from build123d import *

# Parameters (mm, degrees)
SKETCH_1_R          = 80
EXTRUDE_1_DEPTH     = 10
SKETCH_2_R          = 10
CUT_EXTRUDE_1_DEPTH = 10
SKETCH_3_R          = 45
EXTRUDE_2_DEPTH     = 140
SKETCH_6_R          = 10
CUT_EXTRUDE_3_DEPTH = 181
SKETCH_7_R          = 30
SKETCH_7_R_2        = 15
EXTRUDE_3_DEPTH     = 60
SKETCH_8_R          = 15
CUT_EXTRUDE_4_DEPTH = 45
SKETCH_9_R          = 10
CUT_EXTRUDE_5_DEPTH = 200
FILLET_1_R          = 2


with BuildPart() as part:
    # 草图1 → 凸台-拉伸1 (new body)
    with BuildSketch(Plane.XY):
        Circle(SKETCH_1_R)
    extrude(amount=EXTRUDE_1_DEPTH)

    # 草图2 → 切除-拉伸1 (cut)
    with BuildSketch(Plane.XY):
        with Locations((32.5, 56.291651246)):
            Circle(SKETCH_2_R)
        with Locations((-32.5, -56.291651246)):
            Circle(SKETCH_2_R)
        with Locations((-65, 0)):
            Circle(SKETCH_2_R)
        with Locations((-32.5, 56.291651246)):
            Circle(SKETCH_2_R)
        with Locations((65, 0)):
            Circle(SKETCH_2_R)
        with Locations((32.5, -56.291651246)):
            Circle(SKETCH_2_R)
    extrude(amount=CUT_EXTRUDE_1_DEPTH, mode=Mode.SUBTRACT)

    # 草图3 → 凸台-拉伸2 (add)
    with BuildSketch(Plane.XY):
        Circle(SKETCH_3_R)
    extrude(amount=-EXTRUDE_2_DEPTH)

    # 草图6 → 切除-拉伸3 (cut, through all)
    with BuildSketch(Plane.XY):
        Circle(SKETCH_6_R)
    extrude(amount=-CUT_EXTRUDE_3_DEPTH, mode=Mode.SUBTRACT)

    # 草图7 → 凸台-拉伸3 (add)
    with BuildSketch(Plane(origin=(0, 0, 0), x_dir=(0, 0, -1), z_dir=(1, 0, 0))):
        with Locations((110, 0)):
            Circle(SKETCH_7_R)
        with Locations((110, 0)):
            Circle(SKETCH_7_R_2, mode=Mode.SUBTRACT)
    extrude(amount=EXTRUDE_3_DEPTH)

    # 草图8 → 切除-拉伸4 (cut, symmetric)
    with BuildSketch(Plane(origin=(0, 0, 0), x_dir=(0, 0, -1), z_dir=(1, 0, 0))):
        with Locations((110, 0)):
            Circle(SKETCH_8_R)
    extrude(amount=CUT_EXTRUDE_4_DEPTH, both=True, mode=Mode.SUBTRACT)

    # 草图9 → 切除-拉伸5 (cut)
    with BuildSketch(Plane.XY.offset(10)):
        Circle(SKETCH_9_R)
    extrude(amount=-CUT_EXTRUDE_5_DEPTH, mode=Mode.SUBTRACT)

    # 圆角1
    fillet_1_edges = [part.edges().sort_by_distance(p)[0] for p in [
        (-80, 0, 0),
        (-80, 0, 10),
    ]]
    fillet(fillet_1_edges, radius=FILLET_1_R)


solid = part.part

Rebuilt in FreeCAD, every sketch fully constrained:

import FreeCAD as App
import Part
import Sketcher
Q = App.Units.Quantity


def edges_at(feature, points):
    """Names of the edges that pass closest to the given points."""
    edges = feature.Shape.Edges
    near = lambda p: min(range(len(edges)), key=lambda i: edges[i].distToShape(Part.Vertex(*p))[0])
    return sorted({f"Edge{near(p) + 1}" for p in points})

doc = App.newDocument("Part")
params = doc.addObject("Spreadsheet::Sheet", "Params")
for row, (alias, value) in enumerate([
    ("sketch1_diameter", "160 mm"),
    ("pad1_length", "10 mm"),
    ("sketch2_diameter", "20 mm"),
    ("pocket1_length", "10 mm"),
    ("sketch3_diameter", "90 mm"),
    ("pad2_length", "140 mm"),
    ("sketch4_diameter", "20 mm"),
    ("sketch5_diameter", "60 mm"),
    ("sketch5_diameter2", "30 mm"),
    ("pad3_length", "60 mm"),
    ("sketch6_diameter", "30 mm"),
    ("pocket3_length", "90 mm"),
    ("sketch7_diameter", "20 mm"),
    ("pocket4_length", "200 mm"),
    ("fillet_radius", "2 mm"),
], start=1):
    params.set(f"A{row}", alias)
    params.set(f"B{row}", "=" + value)
    params.setAlias(f"B{row}", alias)

body = doc.addObject("PartDesign::Body", "Body")

# Sketch on XY plane
sketch1 = body.newObject("Sketcher::SketchObject", "Sketch")
sketch1.AttachmentSupport = (doc.getObject("XY_Plane"), [""])
sketch1.MapMode = "FlatFace"
sketch1.addGeometry(Part.Circle(App.Vector(0, 0, 0), App.Vector(0, 0, 1), 80), False)
sketch1.addConstraint([
    Sketcher.Constraint("Coincident", 0, 3, -1, 1),
    Sketcher.Constraint("Diameter", 0, Q("160 mm")),
])
sketch1.setExpression("Constraints[1]", "Params.sketch1_diameter")
pad1 = body.newObject("PartDesign::Pad", "Pad")
pad1.Profile = sketch1
pad1.setExpression("Length", "Params.pad1_length")

# Sketch on XY plane
sketch2 = body.newObject("Sketcher::SketchObject", "Sketch001")
sketch2.AttachmentSupport = (doc.getObject("XY_Plane"), [""])
sketch2.MapMode = "FlatFace"
sketch2.addGeometry([
    Part.Circle(App.Vector(32.5, 56.291651, 0), App.Vector(0, 0, 1), 10),  # 0
    Part.Circle(App.Vector(-32.5, -56.291651, 0), App.Vector(0, 0, 1), 10),  # 1
    Part.Circle(App.Vector(-65, 0, 0), App.Vector(0, 0, 1), 10),  # 2
    Part.Circle(App.Vector(-32.5, 56.291651, 0), App.Vector(0, 0, 1), 10),  # 3
    Part.Circle(App.Vector(65, 0, 0), App.Vector(0, 0, 1), 10),  # 4
    Part.Circle(App.Vector(32.5, -56.291651, 0), App.Vector(0, 0, 1), 10),  # 5
], False)
sketch2.addConstraint([
    Sketcher.Constraint("Equal", 0, 1),
    Sketcher.Constraint("Equal", 1, 2),
    Sketcher.Constraint("Equal", 2, 3),
    Sketcher.Constraint("Equal", 3, 4),
    Sketcher.Constraint("Equal", 4, 5),
    Sketcher.Constraint("Symmetric", 0, 3, 1, 3, -1, 1),
    Sketcher.Constraint("Symmetric", 2, 3, 4, 3, -1, 1),
    Sketcher.Constraint("Symmetric", 3, 3, 5, 3, -1, 1),
    Sketcher.Constraint("Symmetric", 0, 3, 3, 3, -2),
    Sketcher.Constraint("PointOnObject", 2, 3, -1),
    Sketcher.Constraint("Diameter", 0, Q("20 mm")),
    Sketcher.Constraint("DistanceX", 2, 3, -1, 1, Q("65 mm")),
    Sketcher.Constraint("DistanceX", 1, 3, 0, 3, Q("65 mm")),
    Sketcher.Constraint("DistanceY", -1, 1, 0, 3, Q("56.291651 mm")),
])
sketch2.setExpression("Constraints[10]", "Params.sketch2_diameter")
pocket1 = body.newObject("PartDesign::Pocket", "Pocket")
pocket1.Profile = sketch2
pocket1.setExpression("Length", "Params.pocket1_length")
pocket1.Reversed = True

# Sketch on XY plane
sketch3 = body.newObject("Sketcher::SketchObject", "Sketch002")
sketch3.AttachmentSupport = (doc.getObject("XY_Plane"), [""])
sketch3.MapMode = "FlatFace"
sketch3.addGeometry(Part.Circle(App.Vector(0, 0, 0), App.Vector(0, 0, 1), 45), False)
sketch3.addConstraint([
    Sketcher.Constraint("Coincident", 0, 3, -1, 1),
    Sketcher.Constraint("Diameter", 0, Q("90 mm")),
])
sketch3.setExpression("Constraints[1]", "Params.sketch3_diameter")
pad2 = body.newObject("PartDesign::Pad", "Pad001")
pad2.Profile = sketch3
pad2.setExpression("Length", "Params.pad2_length")
pad2.Reversed = True

# Sketch on XY plane
sketch4 = body.newObject("Sketcher::SketchObject", "Sketch003")
sketch4.AttachmentSupport = (doc.getObject("XY_Plane"), [""])
sketch4.MapMode = "FlatFace"
sketch4.addGeometry(Part.Circle(App.Vector(0, 0, 0), App.Vector(0, 0, 1), 10), False)
sketch4.addConstraint([
    Sketcher.Constraint("Coincident", 0, 3, -1, 1),
    Sketcher.Constraint("Diameter", 0, Q("20 mm")),
])
sketch4.setExpression("Constraints[1]", "Params.sketch4_diameter")
pocket2 = body.newObject("PartDesign::Pocket", "Pocket001")
pocket2.Profile = sketch4
pocket2.Type = "ThroughAll"

# Sketch on YZ plane
sketch5 = body.newObject("Sketcher::SketchObject", "Sketch004")
sketch5.AttachmentSupport = (doc.getObject("YZ_Plane"), [""])
sketch5.MapMode = "FlatFace"
sketch5.addGeometry([
    Part.Circle(App.Vector(0, -110, 0), App.Vector(0, 0, 1), 30),
    Part.Circle(App.Vector(0, -110, 0), App.Vector(0, 0, 1), 15),
], False)
sketch5.addConstraint([
    Sketcher.Constraint("Coincident", 1, 3, 0, 3),
    Sketcher.Constraint("PointOnObject", 0, 3, -2),
    Sketcher.Constraint("Diameter", 0, Q("60 mm")),
    Sketcher.Constraint("Diameter", 1, Q("30 mm")),
    Sketcher.Constraint("DistanceY", 0, 3, -1, 1, Q("110 mm")),
])
sketch5.setExpression("Constraints[2]", "Params.sketch5_diameter")
sketch5.setExpression("Constraints[3]", "Params.sketch5_diameter2")
pad3 = body.newObject("PartDesign::Pad", "Pad002")
pad3.Profile = sketch5
pad3.setExpression("Length", "Params.pad3_length")

# Sketch on YZ plane
sketch6 = body.newObject("Sketcher::SketchObject", "Sketch005")
sketch6.AttachmentSupport = (doc.getObject("YZ_Plane"), [""])
sketch6.MapMode = "FlatFace"
sketch6.addGeometry(Part.Circle(App.Vector(0, -110, 0), App.Vector(0, 0, 1), 15), False)
sketch6.addConstraint([
    Sketcher.Constraint("PointOnObject", 0, 3, -2),
    Sketcher.Constraint("Diameter", 0, Q("30 mm")),
    Sketcher.Constraint("DistanceY", 0, 3, -1, 1, Q("110 mm")),
])
sketch6.setExpression("Constraints[1]", "Params.sketch6_diameter")
pocket3 = body.newObject("PartDesign::Pocket", "Pocket002")
pocket3.Profile = sketch6
pocket3.setExpression("Length", "Params.pocket3_length")
pocket3.Midplane = True

# Sketch on XY plane
sketch7 = body.newObject("Sketcher::SketchObject", "Sketch006")
sketch7.AttachmentSupport = (doc.getObject("XY_Plane"), [""])
sketch7.MapMode = "FlatFace"
sketch7.AttachmentOffset = App.Placement(App.Vector(0, 0, 10), App.Rotation())
sketch7.addGeometry(Part.Circle(App.Vector(0, 0, 0), App.Vector(0, 0, 1), 10), False)
sketch7.addConstraint([
    Sketcher.Constraint("Coincident", 0, 3, -1, 1),
    Sketcher.Constraint("Diameter", 0, Q("20 mm")),
])
sketch7.setExpression("Constraints[1]", "Params.sketch7_diameter")
pocket4 = body.newObject("PartDesign::Pocket", "Pocket003")
pocket4.Profile = sketch7
pocket4.setExpression("Length", "Params.pocket4_length")
doc.recompute()

fillet = body.newObject("PartDesign::Fillet", "Fillet")
fillet.Base = (pocket4, edges_at(pocket4, [(-80, 0, 0), (-80, 0, 10)]))
fillet.setExpression("Radius", "Params.fillet_radius")

doc.recompute()
